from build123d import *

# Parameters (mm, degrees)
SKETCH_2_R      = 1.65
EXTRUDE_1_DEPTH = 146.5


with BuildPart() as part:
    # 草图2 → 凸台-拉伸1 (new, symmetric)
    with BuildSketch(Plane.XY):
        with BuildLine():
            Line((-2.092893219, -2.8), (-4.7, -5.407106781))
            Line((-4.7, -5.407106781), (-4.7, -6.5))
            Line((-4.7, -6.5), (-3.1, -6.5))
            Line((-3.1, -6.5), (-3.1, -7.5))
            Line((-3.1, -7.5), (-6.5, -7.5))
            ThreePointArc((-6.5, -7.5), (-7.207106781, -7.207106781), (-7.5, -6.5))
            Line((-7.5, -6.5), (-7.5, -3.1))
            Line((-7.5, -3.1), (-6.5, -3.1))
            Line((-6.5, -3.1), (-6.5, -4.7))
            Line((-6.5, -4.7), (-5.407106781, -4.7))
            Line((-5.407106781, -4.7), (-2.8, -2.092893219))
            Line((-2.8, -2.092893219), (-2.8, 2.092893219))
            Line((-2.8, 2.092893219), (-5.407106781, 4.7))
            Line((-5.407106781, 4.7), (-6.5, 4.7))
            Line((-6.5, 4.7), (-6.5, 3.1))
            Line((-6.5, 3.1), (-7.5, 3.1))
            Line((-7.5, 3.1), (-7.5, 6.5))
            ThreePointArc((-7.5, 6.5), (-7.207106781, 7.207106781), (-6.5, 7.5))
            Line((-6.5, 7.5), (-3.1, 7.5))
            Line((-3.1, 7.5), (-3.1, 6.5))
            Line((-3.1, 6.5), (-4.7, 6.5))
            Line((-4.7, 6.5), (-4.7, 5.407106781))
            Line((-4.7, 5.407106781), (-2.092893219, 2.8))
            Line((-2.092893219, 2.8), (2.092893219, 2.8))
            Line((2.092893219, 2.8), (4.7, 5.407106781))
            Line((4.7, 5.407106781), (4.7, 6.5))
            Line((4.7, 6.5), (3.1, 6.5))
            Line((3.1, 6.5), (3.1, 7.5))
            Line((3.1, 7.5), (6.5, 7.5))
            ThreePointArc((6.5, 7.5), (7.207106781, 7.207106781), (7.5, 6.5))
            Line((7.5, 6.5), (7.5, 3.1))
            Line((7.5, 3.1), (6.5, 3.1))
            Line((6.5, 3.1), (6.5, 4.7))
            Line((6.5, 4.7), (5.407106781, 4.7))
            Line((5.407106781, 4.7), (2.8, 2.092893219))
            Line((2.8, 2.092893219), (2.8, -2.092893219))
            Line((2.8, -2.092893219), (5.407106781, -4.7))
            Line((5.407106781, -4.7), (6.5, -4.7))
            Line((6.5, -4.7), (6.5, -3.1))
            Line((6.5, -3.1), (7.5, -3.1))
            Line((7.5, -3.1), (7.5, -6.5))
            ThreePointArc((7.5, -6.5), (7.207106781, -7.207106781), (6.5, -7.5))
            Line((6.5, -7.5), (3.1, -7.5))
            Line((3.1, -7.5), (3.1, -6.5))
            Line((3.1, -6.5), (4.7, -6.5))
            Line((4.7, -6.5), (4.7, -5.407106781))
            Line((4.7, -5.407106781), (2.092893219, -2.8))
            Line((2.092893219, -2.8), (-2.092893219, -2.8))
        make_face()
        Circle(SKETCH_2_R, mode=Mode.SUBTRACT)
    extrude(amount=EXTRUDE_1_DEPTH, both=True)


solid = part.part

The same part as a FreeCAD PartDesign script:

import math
import FreeCAD as App
import Part
import Sketcher
Q = App.Units.Quantity

doc = App.newDocument("Part")
body = doc.addObject("PartDesign::Body", "Body")

sketch1 = body.newObject("Sketcher::SketchObject", "Sketch")
sketch1.AttachmentSupport = (doc.getObject("XY_Plane"), [""])
sketch1.MapMode = "FlatFace"
sketch1.addGeometry(Part.LineSegment(App.Vector(-4.7, -5.4, 0), App.Vector(-2.1, -2.8, 0)), False)
sketch1.addGeometry(Part.LineSegment(App.Vector(-2.1, -2.8, 0), App.Vector(2.1, -2.8, 0)), False)
sketch1.addGeometry(Part.LineSegment(App.Vector(2.1, -2.8, 0), App.Vector(4.7, -5.4, 0)), False)
sketch1.addGeometry(Part.LineSegment(App.Vector(4.7, -5.4, 0), App.Vector(4.7, -6.5, 0)), False)
sketch1.addGeometry(Part.LineSegment(App.Vector(4.7, -6.5, 0), App.Vector(3.1, -6.5, 0)), False)
sketch1.addGeometry(Part.LineSegment(App.Vector(3.1, -6.5, 0), App.Vector(3.1, -7.5, 0)), False)
sketch1.addGeometry(Part.LineSegment(App.Vector(3.1, -7.5, 0), App.Vector(6.5, -7.5, 0)), False)
sketch1.addGeometry(Part.ArcOfCircle(Part.Circle(App.Vector(6.5, -6.5, 0), App.Vector(0, 0, 1), 1), math.radians(-90), math.radians(0)), False)
sketch1.addGeometry(Part.LineSegment(App.Vector(7.5, -6.5, 0), App.Vector(7.5, -3.1, 0)), False)
sketch1.addGeometry(Part.LineSegment(App.Vector(7.5, -3.1, 0), App.Vector(6.5, -3.1, 0)), False)
sketch1.addGeometry(Part.LineSegment(App.Vector(6.5, -3.1, 0), App.Vector(6.5, -4.7, 0)), False)
sketch1.addGeometry(Part.LineSegment(App.Vector(6.5, -4.7, 0), App.Vector(5.4, -4.7, 0)), False)
sketch1.addGeometry(Part.LineSegment(App.Vector(5.4, -4.7, 0), App.Vector(2.8, -2.1, 0)), False)
sketch1.addGeometry(Part.LineSegment(App.Vector(2.8, -2.1, 0), App.Vector(2.8, 2.1, 0)), False)
sketch1.addGeometry(Part.LineSegment(App.Vector(2.8, 2.1, 0), App.Vector(5.4, 4.7, 0)), False)
sketch1.addGeometry(Part.LineSegment(App.Vector(5.4, 4.7, 0), App.Vector(6.5, 4.7, 0)), False)
sketch1.addGeometry(Part.LineSegment(App.Vector(6.5, 4.7, 0), App.Vector(6.5, 3.1, 0)), False)
sketch1.addGeometry(Part.LineSegment(App.Vector(6.5, 3.1, 0), App.Vector(7.5, 3.1, 0)), False)
sketch1.addGeometry(Part.LineSegment(App.Vector(7.5, 3.1, 0), App.Vector(7.5, 6.5, 0)), False)
sketch1.addGeometry(Part.ArcOfCircle(Part.Circle(App.Vector(6.5, 6.5, 0), App.Vector(0, 0, 1), 1), math.radians(0), math.radians(90)), False)
sketch1.addGeometry(Part.LineSegment(App.Vector(6.5, 7.5, 0), App.Vector(3.1, 7.5, 0)), False)
sketch1.addGeometry(Part.LineSegment(App.Vector(3.1, 7.5, 0), App.Vector(3.1, 6.5, 0)), False)
sketch1.addGeometry(Part.LineSegment(App.Vector(3.1, 6.5, 0), App.Vector(4.7, 6.5, 0)), False)
sketch1.addGeometry(Part.LineSegment(App.Vector(4.7, 6.5, 0), App.Vector(4.7, 5.4, 0)), False)
sketch1.addGeometry(Part.LineSegment(App.Vector(4.7, 5.4, 0), App.Vector(2.1, 2.8, 0)), False)
sketch1.addGeometry(Part.LineSegment(App.Vector(2.1, 2.8, 0), App.Vector(-2.1, 2.8, 0)), False)
sketch1.addGeometry(Part.LineSegment(App.Vector(-2.1, 2.8, 0), App.Vector(-4.7, 5.4, 0)), False)
sketch1.addGeometry(Part.LineSegment(App.Vector(-4.7, 5.4, 0), App.Vector(-4.7, 6.5, 0)), False)
sketch1.addGeometry(Part.LineSegment(App.Vector(-4.7, 6.5, 0), App.Vector(-3.1, 6.5, 0)), False)
sketch1.addGeometry(Part.LineSegment(App.Vector(-3.1, 6.5, 0), App.Vector(-3.1, 7.5, 0)), False)
sketch1.addGeometry(Part.LineSegment(App.Vector(-3.1, 7.5, 0), App.Vector(-6.5, 7.5, 0)), False)
sketch1.addGeometry(Part.ArcOfCircle(Part.Circle(App.Vector(-6.5, 6.5, 0), App.Vector(0, 0, 1), 1), math.radians(90), math.radians(180)), False)
sketch1.addGeometry(Part.LineSegment(App.Vector(-7.5, 6.5, 0), App.Vector(-7.5, 3.1, 0)), False)
sketch1.addGeometry(Part.LineSegment(App.Vector(-7.5, 3.1, 0), App.Vector(-6.5, 3.1, 0)), False)
sketch1.addGeometry(Part.LineSegment(App.Vector(-6.5, 3.1, 0), App.Vector(-6.5, 4.7, 0)), False)
sketch1.addGeometry(Part.LineSegment(App.Vector(-6.5, 4.7, 0), App.Vector(-5.4, 4.7, 0)), False)
sketch1.addGeometry(Part.LineSegment(App.Vector(-5.4, 4.7, 0), App.Vector(-2.8, 2.1, 0)), False)
sketch1.addGeometry(Part.LineSegment(App.Vector(-2.8, 2.1, 0), App.Vector(-2.8, -2.1, 0)), False)
sketch1.addGeometry(Part.LineSegment(App.Vector(-2.8, -2.1, 0), App.Vector(-5.4, -4.7, 0)), False)
sketch1.addGeometry(Part.LineSegment(App.Vector(-5.4, -4.7, 0), App.Vector(-6.5, -4.7, 0)), False)
sketch1.addGeometry(Part.LineSegment(App.Vector(-6.5, -4.7, 0), App.Vector(-6.5, -3.1, 0)), False)
sketch1.addGeometry(Part.LineSegment(App.Vector(-6.5, -3.1, 0), App.Vector(-7.5, -3.1, 0)), False)
sketch1.addGeometry(Part.LineSegment(App.Vector(-7.5, -3.1, 0), App.Vector(-7.5, -6.5, 0)), False)
sketch1.addGeometry(Part.ArcOfCircle(Part.Circle(App.Vector(-6.5, -6.5, 0), App.Vector(0, 0, 1), 1), math.radians(-180), math.radians(-90)), False)
sketch1.addGeometry(Part.LineSegment(App.Vector(-6.5, -7.5, 0), App.Vector(-3.1, -7.5, 0)), False)
sketch1.addGeometry(Part.LineSegment(App.Vector(-3.1, -7.5, 0), App.Vector(-3.1, -6.5, 0)), False)
sketch1.addGeometry(Part.LineSegment(App.Vector(-3.1, -6.5, 0), App.Vector(-4.7, -6.5, 0)), False)
sketch1.addGeometry(Part.LineSegment(App.Vector(-4.7, -6.5, 0), App.Vector(-4.7, -5.4, 0)), False)
sketch1.addGeometry(Part.Circle(App.Vector(0, 0, 0), App.Vector(0, 0, 1), 1.6), False)
sketch1.addConstraint(Sketcher.Constraint("Coincident", 0, 2, 1, 1))
sketch1.addConstraint(Sketcher.Constraint("Coincident", 1, 2, 2, 1))
sketch1.addConstraint(Sketcher.Constraint("Coincident", 2, 2, 3, 1))
sketch1.addConstraint(Sketcher.Constraint("Coincident", 3, 2, 4, 1))
sketch1.addConstraint(Sketcher.Constraint("Coincident", 4, 2, 5, 1))
sketch1.addConstraint(Sketcher.Constraint("Coincident", 5, 2, 6, 1))
sketch1.addConstraint(Sketcher.Constraint("Tangent", 6, 2, 7, 1))
sketch1.addConstraint(Sketcher.Constraint("Tangent", 7, 2, 8, 1))
sketch1.addConstraint(Sketcher.Constraint("Coincident", 8, 2, 9, 1))
sketch1.addConstraint(Sketcher.Constraint("Coincident", 9, 2, 10, 1))
sketch1.addConstraint(Sketcher.Constraint("Coincident", 10, 2, 11, 1))
sketch1.addConstraint(Sketcher.Constraint("Coincident", 11, 2, 12, 1))
sketch1.addConstraint(Sketcher.Constraint("Coincident", 12, 2, 13, 1))
sketch1.addConstraint(Sketcher.Constraint("Coincident", 13, 2, 14, 1))
sketch1.addConstraint(Sketcher.Constraint("Coincident", 14, 2, 15, 1))
sketch1.addConstraint(Sketcher.Constraint("Coincident", 15, 2, 16, 1))
sketch1.addConstraint(Sketcher.Constraint("Coincident", 16, 2, 17, 1))
sketch1.addConstraint(Sketcher.Constraint("Coincident", 17, 2, 18, 1))
sketch1.addConstraint(Sketcher.Constraint("Tangent", 18, 2, 19, 1))
sketch1.addConstraint(Sketcher.Constraint("Tangent", 19, 2, 20, 1))
sketch1.addConstraint(Sketcher.Constraint("Coincident", 20, 2, 21, 1))
sketch1.addConstraint(Sketcher.Constraint("Coincident", 21, 2, 22, 1))
sketch1.addConstraint(Sketcher.Constraint("Coincident", 22, 2, 23, 1))
sketch1.addConstraint(Sketcher.Constraint("Coincident", 23, 2, 24, 1))
sketch1.addConstraint(Sketcher.Constraint("Coincident", 24, 2, 25, 1))
sketch1.addConstraint(Sketcher.Constraint("Coincident", 25, 2, 26, 1))
sketch1.addConstraint(Sketcher.Constraint("Coincident", 26, 2, 27, 1))
sketch1.addConstraint(Sketcher.Constraint("Coincident", 27, 2, 28, 1))
sketch1.addConstraint(Sketcher.Constraint("Coincident", 28, 2, 29, 1))
sketch1.addConstraint(Sketcher.Constraint("Coincident", 29, 2, 30, 1))
sketch1.addConstraint(Sketcher.Constraint("Tangent", 30, 2, 31, 1))
sketch1.addConstraint(Sketcher.Constraint("Tangent", 31, 2, 32, 1))
sketch1.addConstraint(Sketcher.Constraint("Coincident", 32, 2, 33, 1))
sketch1.addConstraint(Sketcher.Constraint("Coincident", 33, 2, 34, 1))
sketch1.addConstraint(Sketcher.Constraint("Coincident", 34, 2, 35, 1))
sketch1.addConstraint(Sketcher.Constraint("Coincident", 35, 2, 36, 1))
sketch1.addConstraint(Sketcher.Constraint("Coincident", 36, 2, 37, 1))
sketch1.addConstraint(Sketcher.Constraint("Coincident", 37, 2, 38, 1))
sketch1.addConstraint(Sketcher.Constraint("Coincident", 38, 2, 39, 1))
sketch1.addConstraint(Sketcher.Constraint("Coincident", 39, 2, 40, 1))
sketch1.addConstraint(Sketcher.Constraint("Coincident", 40, 2, 41, 1))
sketch1.addConstraint(Sketcher.Constraint("Coincident", 41, 2, 42, 1))
sketch1.addConstraint(Sketcher.Constraint("Tangent", 42, 2, 43, 1))
sketch1.addConstraint(Sketcher.Constraint("Tangent", 43, 2, 44, 1))
sketch1.addConstraint(Sketcher.Constraint("Coincident", 44, 2, 45, 1))
sketch1.addConstraint(Sketcher.Constraint("Coincident", 45, 2, 46, 1))
sketch1.addConstraint(Sketcher.Constraint("Coincident", 46, 2, 47, 1))
sketch1.addConstraint(Sketcher.Constraint("Coincident", 47, 2, 0, 1))
sketch1.addConstraint(Sketcher.Constraint("Horizontal", 1))
sketch1.addConstraint(Sketcher.Constraint("Vertical", 3))
sketch1.addConstraint(Sketcher.Constraint("Horizontal", 4))
sketch1.addConstraint(Sketcher.Constraint("Vertical", 5))
sketch1.addConstraint(Sketcher.Constraint("Horizontal", 6))
sketch1.addConstraint(Sketcher.Constraint("Vertical", 8))
sketch1.addConstraint(Sketcher.Constraint("Horizontal", 9))
sketch1.addConstraint(Sketcher.Constraint("Vertical", 10))
sketch1.addConstraint(Sketcher.Constraint("Horizontal", 11))
sketch1.addConstraint(Sketcher.Constraint("Vertical", 13))
sketch1.addConstraint(Sketcher.Constraint("Horizontal", 15))
sketch1.addConstraint(Sketcher.Constraint("Vertical", 16))
sketch1.addConstraint(Sketcher.Constraint("Horizontal", 17))
sketch1.addConstraint(Sketcher.Constraint("Vertical", 18))
sketch1.addConstraint(Sketcher.Constraint("Horizontal", 20))
sketch1.addConstraint(Sketcher.Constraint("Vertical", 21))
sketch1.addConstraint(Sketcher.Constraint("Horizontal", 22))
sketch1.addConstraint(Sketcher.Constraint("Vertical", 23))
sketch1.addConstraint(Sketcher.Constraint("Horizontal", 25))
sketch1.addConstraint(Sketcher.Constraint("Vertical", 27))
sketch1.addConstraint(Sketcher.Constraint("Horizontal", 28))
sketch1.addConstraint(Sketcher.Constraint("Vertical", 29))
sketch1.addConstraint(Sketcher.Constraint("Horizontal", 30))
sketch1.addConstraint(Sketcher.Constraint("Vertical", 32))
sketch1.addConstraint(Sketcher.Constraint("Horizontal", 33))
sketch1.addConstraint(Sketcher.Constraint("Vertical", 34))
sketch1.addConstraint(Sketcher.Constraint("Horizontal", 35))
sketch1.addConstraint(Sketcher.Constraint("Vertical", 37))
sketch1.addConstraint(Sketcher.Constraint("Horizontal", 39))
sketch1.addConstraint(Sketcher.Constraint("Vertical", 40))
sketch1.addConstraint(Sketcher.Constraint("Horizontal", 41))
sketch1.addConstraint(Sketcher.Constraint("Vertical", 42))
sketch1.addConstraint(Sketcher.Constraint("Horizontal", 44))
sketch1.addConstraint(Sketcher.Constraint("Vertical", 45))
sketch1.addConstraint(Sketcher.Constraint("Horizontal", 46))
sketch1.addConstraint(Sketcher.Constraint("Vertical", 47))
sketch1.addConstraint(Sketcher.Constraint("Coincident", 48, 3, -1, 1))
sketch1.addConstraint(Sketcher.Constraint("Equal", 7, 19))
sketch1.addConstraint(Sketcher.Constraint("Equal", 19, 31))
sketch1.addConstraint(Sketcher.Constraint("Equal", 31, 43))
sketch1.addConstraint(Sketcher.Constraint("Symmetric", 7, 3, 31, 3, -1, 1))
sketch1.addConstraint(Sketcher.Constraint("Symmetric", 19, 3, 43, 3, -1, 1))
sketch1.addConstraint(Sketcher.Constraint("Symmetric", 0, 2, 24, 2, -1, 1))
sketch1.addConstraint(Sketcher.Constraint("Symmetric", 2, 2, 26, 2, -1, 1))
sketch1.addConstraint(Sketcher.Constraint("Symmetric", 4, 2, 28, 2, -1, 1))
sketch1.addConstraint(Sketcher.Constraint("Symmetric", 9, 2, 33, 2, -1, 1))
sketch1.addConstraint(Sketcher.Constraint("Symmetric", 11, 2, 35, 2, -1, 1))
sketch1.addConstraint(Sketcher.Constraint("Symmetric", 12, 2, 36, 2, -1, 1))
sketch1.addConstraint(Sketcher.Constraint("Symmetric", 14, 2, 38, 2, -1, 1))
sketch1.addConstraint(Sketcher.Constraint("Symmetric", 16, 2, 40, 2, -1, 1))
sketch1.addConstraint(Sketcher.Constraint("Symmetric", 21, 2, 45, 2, -1, 1))
sketch1.addConstraint(Sketcher.Constraint("Symmetric", 23, 2, 47, 2, -1, 1))
sketch1.addConstraint(Sketcher.Constraint("Symmetric", 19, 3, 31, 3, -2))
sketch1.addConstraint(Sketcher.Constraint("Symmetric", 23, 2, 26, 2, -2))
sketch1.addConstraint(Sketcher.Constraint("Symmetric", 21, 2, 28, 2, -2))
sketch1.addConstraint(Sketcher.Constraint("Symmetric", 16, 2, 33, 2, -2))
sketch1.addConstraint(Sketcher.Constraint("Symmetric", 14, 2, 35, 2, -2))
sketch1.addConstraint(Sketcher.Constraint("Perpendicular", 0, 2))
sketch1.addConstraint(Sketcher.Constraint("Parallel", 2, 12))
sketch1.addConstraint(Sketcher.Constraint("Perpendicular", 12, 14))
sketch1.addConstraint(Sketcher.Constraint("Perpendicular", 24, 26))
sketch1.addConstraint(Sketcher.Constraint("Perpendicular", 36, 38))
sketch1.addConstraint(Sketcher.Constraint("Horizontal", 43, 3, 3, 2))
sketch1.addConstraint(Sketcher.Constraint("Horizontal", 13, 2, 36, 2))
sketch1.addConstraint(Sketcher.Constraint("Vertical", 6, 2, 9, 2))
sketch1.addConstraint(Sketcher.Constraint("Equal", 39, 3))
sketch1.addConstraint(Sketcher.Constraint("Equal", 44, 8))
sketch1.addConstraint(Sketcher.Constraint("Equal", 46, 10))
sketch1.addConstraint(Sketcher.Constraint("Equal", 25, 13))
sketch1.addConstraint(Sketcher.Constraint("Equal", 2, 12))
sketch1.addConstraint(Sketcher.Constraint("Radius", 7, Q("1 mm")))
sketch1.addConstraint(Sketcher.Constraint("Diameter", 48, Q("3.3 mm")))
sketch1.addConstraint(Sketcher.Constraint("DistanceX", 4, 2, 4, 1, Q("1.6 mm")))
sketch1.addConstraint(Sketcher.Constraint("DistanceX", 6, 1, 6, 2, Q("3.4 mm")))
sketch1.addConstraint(Sketcher.Constraint("DistanceY", 7, 3, 19, 3, Q("13 mm")))
sketch1.addConstraint(Sketcher.Constraint("DistanceY", 0, 2, -1, 1, Q("2.8 mm")))
sketch1.addConstraint(Sketcher.Constraint("DistanceX", 1, 1, 1, 2, Q("4.185786 mm")))
pad1 = body.newObject("PartDesign::Pad", "Pad")
pad1.Profile = sketch1
pad1.Length = 293
pad1.Midplane = True

doc.recompute()
